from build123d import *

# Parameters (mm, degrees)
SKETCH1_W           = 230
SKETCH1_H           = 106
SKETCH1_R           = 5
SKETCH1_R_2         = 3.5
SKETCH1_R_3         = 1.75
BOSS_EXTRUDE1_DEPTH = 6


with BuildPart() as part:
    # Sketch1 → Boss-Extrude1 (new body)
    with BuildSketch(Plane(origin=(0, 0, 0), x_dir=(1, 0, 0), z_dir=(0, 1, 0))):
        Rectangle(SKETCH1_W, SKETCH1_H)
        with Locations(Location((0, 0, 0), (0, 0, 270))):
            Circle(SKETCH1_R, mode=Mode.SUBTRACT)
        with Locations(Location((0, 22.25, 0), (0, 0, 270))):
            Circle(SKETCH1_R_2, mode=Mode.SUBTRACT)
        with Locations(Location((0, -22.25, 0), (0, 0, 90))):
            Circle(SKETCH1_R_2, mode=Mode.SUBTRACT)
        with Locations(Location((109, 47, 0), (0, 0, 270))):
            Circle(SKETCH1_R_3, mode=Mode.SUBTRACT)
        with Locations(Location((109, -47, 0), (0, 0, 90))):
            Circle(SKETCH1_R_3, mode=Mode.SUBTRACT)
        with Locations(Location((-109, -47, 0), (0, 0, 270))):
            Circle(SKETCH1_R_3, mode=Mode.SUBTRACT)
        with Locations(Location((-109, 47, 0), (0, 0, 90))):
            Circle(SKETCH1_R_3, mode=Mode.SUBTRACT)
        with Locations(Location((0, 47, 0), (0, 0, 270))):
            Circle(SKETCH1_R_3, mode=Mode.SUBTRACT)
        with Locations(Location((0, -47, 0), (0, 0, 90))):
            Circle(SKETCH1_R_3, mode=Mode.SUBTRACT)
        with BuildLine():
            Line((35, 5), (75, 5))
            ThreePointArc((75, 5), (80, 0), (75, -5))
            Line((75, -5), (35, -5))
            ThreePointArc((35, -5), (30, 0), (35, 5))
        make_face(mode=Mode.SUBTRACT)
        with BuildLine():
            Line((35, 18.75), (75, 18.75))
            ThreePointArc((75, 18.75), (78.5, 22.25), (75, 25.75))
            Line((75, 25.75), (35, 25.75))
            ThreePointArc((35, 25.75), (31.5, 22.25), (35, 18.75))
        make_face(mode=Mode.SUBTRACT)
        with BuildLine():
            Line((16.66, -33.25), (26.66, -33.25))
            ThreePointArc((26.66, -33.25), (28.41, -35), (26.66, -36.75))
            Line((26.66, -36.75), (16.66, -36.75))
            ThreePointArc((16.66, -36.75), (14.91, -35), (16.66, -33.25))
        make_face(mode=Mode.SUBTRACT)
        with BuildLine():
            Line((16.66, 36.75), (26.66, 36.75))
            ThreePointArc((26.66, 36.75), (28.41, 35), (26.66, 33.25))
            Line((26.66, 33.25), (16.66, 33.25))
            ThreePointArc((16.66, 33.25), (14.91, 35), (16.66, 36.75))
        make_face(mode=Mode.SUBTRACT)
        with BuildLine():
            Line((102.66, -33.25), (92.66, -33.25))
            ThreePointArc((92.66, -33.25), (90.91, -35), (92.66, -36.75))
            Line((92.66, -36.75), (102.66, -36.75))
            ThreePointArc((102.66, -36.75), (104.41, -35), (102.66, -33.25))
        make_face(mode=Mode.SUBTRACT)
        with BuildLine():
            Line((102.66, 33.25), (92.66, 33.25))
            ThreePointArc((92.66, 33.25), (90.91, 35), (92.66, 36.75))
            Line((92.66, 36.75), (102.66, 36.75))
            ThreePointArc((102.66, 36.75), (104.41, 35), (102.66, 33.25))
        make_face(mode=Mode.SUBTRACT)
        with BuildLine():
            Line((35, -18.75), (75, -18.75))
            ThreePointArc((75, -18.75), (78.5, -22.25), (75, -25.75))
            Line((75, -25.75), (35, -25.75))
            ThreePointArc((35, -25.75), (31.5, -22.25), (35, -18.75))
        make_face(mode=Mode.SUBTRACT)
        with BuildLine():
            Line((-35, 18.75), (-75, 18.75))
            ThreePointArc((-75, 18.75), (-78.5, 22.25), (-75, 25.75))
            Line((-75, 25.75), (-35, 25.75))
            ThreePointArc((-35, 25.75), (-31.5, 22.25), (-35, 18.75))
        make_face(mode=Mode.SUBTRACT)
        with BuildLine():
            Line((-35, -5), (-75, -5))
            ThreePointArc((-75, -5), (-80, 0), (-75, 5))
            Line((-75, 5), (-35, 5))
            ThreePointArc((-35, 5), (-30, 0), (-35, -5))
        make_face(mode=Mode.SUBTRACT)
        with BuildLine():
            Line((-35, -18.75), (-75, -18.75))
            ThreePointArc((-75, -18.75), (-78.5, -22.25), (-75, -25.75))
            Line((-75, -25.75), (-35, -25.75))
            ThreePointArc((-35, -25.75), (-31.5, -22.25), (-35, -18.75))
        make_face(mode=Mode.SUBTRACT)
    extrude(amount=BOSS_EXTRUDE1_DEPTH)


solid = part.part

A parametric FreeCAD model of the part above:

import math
import FreeCAD as App
import Part
import Sketcher


def add_polygon(sketch, points):
    """Adds a closed chain of lines whose ends are joined by coincident constraints."""
    first, n = sketch.GeometryCount, len(points)
    for a, b in zip(points, points[1:] + points[:1]):
        sketch.addGeometry(Part.LineSegment(App.Vector(*a, 0), App.Vector(*b, 0)), False)
    for i in range(n):
        sketch.addConstraint(Sketcher.Constraint("Coincident", first + i, 2, first + (i + 1) % n, 1))

doc = App.newDocument("Part")
body = doc.addObject("PartDesign::Body", "Body")

# Sketch on XZ plane
sketch1 = doc.addObject("Sketcher::SketchObject", "Sketch")
body.addObject(sketch1)
sketch1.AttachmentSupport = (doc.XZ_Plane, [""])
sketch1.MapMode = "FlatFace"
add_polygon(sketch1, [(-115, -53), (-115, 53), (115, 53), (115, -53)])  # lines 0-3
sketch1.addGeometry(Part.Circle(App.Vector(-109, 47, 0), App.Vector(0, 0, 1), 1.75), False)  # 4
sketch1.addGeometry(Part.Circle(App.Vector(0, 47, 0), App.Vector(0, 0, 1), 1.75), False)  # 5
sketch1.addGeometry(Part.LineSegment(App.Vector(-75, 18.75, 0), App.Vector(-35, 18.75, 0)), False)  # 6
sketch1.addGeometry(Part.ArcOfCircle(Part.Circle(App.Vector(-35, 22.25, 0), App.Vector(0, 0, 1), 3.5), math.radians(-90), math.radians(90)), False)  # 7
sketch1.addGeometry(Part.LineSegment(App.Vector(-35, 25.75, 0), App.Vector(-75, 25.75, 0)), False)  # 8
sketch1.addGeometry(Part.ArcOfCircle(Part.Circle(App.Vector(-75, 22.25, 0), App.Vector(0, 0, 1), 3.5), math.radians(90), math.radians(270)), False)  # 9
sketch1.addGeometry(Part.Circle(App.Vector(0, 22.25, 0), App.Vector(0, 0, 1), 3.5), False)  # 10
sketch1.addGeometry(Part.ArcOfCircle(Part.Circle(App.Vector(16.66, 35, 0), App.Vector(0, 0, 1), 1.75), math.radians(90), math.radians(270)), False)  # 11
sketch1.addGeometry(Part.LineSegment(App.Vector(16.66, 33.25, 0), App.Vector(26.66, 33.25, 0)), False)  # 12
sketch1.addGeometry(Part.ArcOfCircle(Part.Circle(App.Vector(26.66, 35, 0), App.Vector(0, 0, 1), 1.75), math.radians(-90), math.radians(90)), False)  # 13
sketch1.addGeometry(Part.LineSegment(App.Vector(26.66, 36.75, 0), App.Vector(16.66, 36.75, 0)), False)  # 14
sketch1.addGeometry(Part.Circle(App.Vector(109, 47, 0), App.Vector(0, 0, 1), 1.75), False)  # 15
sketch1.addGeometry(Part.LineSegment(App.Vector(92.66, 33.25, 0), App.Vector(102.66, 33.25, 0)), False)  # 16
sketch1.addGeometry(Part.ArcOfCircle(Part.Circle(App.Vector(102.66, 35, 0), App.Vector(0, 0, 1), 1.75), math.radians(-90), math.radians(90)), False)  # 17
sketch1.addGeometry(Part.LineSegment(App.Vector(102.66, 36.75, 0), App.Vector(92.66, 36.75, 0)), False)  # 18
sketch1.addGeometry(Part.ArcOfCircle(Part.Circle(App.Vector(92.66, 35, 0), App.Vector(0, 0, 1), 1.75), math.radians(90), math.radians(270)), False)  # 19
sketch1.addGeometry(Part.ArcOfCircle(Part.Circle(App.Vector(35, 22.25, 0), App.Vector(0, 0, 1), 3.5), math.radians(90), math.radians(270)), False)  # 20
sketch1.addGeometry(Part.LineSegment(App.Vector(35, 18.75, 0), App.Vector(75, 18.75, 0)), False)  # 21
sketch1.addGeometry(Part.ArcOfCircle(Part.Circle(App.Vector(75, 22.25, 0), App.Vector(0, 0, 1), 3.5), math.radians(-90), math.radians(90)), False)  # 22
sketch1.addGeometry(Part.LineSegment(App.Vector(75, 25.75, 0), App.Vector(35, 25.75, 0)), False)  # 23
sketch1.addGeometry(Part.ArcOfCircle(Part.Circle(App.Vector(-35, 0, 0), App.Vector(0, 0, 1), 5), math.radians(-90), math.radians(90)), False)  # 24
sketch1.addGeometry(Part.LineSegment(App.Vector(-35, 5, 0), App.Vector(-75, 5, 0)), False)  # 25
sketch1.addGeometry(Part.ArcOfCircle(Part.Circle(App.Vector(-75, 0, 0), App.Vector(0, 0, 1), 5), math.radians(90), math.radians(270)), False)  # 26
sketch1.addGeometry(Part.LineSegment(App.Vector(-75, -5, 0), App.Vector(-35, -5, 0)), False)  # 27
sketch1.addGeometry(Part.Circle(App.Vector(0, 0, 0), App.Vector(0, 0, 1), 5), False)  # 28
sketch1.addGeometry(Part.ArcOfCircle(Part.Circle(App.Vector(-35, -22.25, 0), App.Vector(0, 0, 1), 3.5), math.radians(-90), math.radians(90)), False)  # 29
sketch1.addGeometry(Part.LineSegment(App.Vector(-35, -18.75, 0), App.Vector(-75, -18.75, 0)), False)  # 30
sketch1.addGeometry(Part.ArcOfCircle(Part.Circle(App.Vector(-75, -22.25, 0), App.Vector(0, 0, 1), 3.5), math.radians(90), math.radians(270)), False)  # 31
sketch1.addGeometry(Part.LineSegment(App.Vector(-75, -25.75, 0), App.Vector(-35, -25.75, 0)), False)  # 32
sketch1.addGeometry(Part.Circle(App.Vector(0, -22.25, 0), App.Vector(0, 0, 1), 3.5), False)  # 33
sketch1.addGeometry(Part.Circle(App.Vector(-109, -47, 0), App.Vector(0, 0, 1), 1.75), False)  # 34
sketch1.addGeometry(Part.Circle(App.Vector(0, -47, 0), App.Vector(0, 0, 1), 1.75), False)  # 35
sketch1.addGeometry(Part.ArcOfCircle(Part.Circle(App.Vector(35, 0, 0), App.Vector(0, 0, 1), 5), math.radians(90), math.radians(270)), False)  # 36
sketch1.addGeometry(Part.LineSegment(App.Vector(35, -5, 0), App.Vector(75, -5, 0)), False)  # 37
sketch1.addGeometry(Part.ArcOfCircle(Part.Circle(App.Vector(75, 0, 0), App.Vector(0, 0, 1), 5), math.radians(-90), math.radians(90)), False)  # 38
sketch1.addGeometry(Part.LineSegment(App.Vector(75, 5, 0), App.Vector(35, 5, 0)), False)  # 39
sketch1.addGeometry(Part.LineSegment(App.Vector(75, -18.75, 0), App.Vector(35, -18.75, 0)), False)  # 40
sketch1.addGeometry(Part.ArcOfCircle(Part.Circle(App.Vector(35, -22.25, 0), App.Vector(0, 0, 1), 3.5), math.radians(90), math.radians(270)), False)  # 41
sketch1.addGeometry(Part.LineSegment(App.Vector(35, -25.75, 0), App.Vector(75, -25.75, 0)), False)  # 42
sketch1.addGeometry(Part.ArcOfCircle(Part.Circle(App.Vector(75, -22.25, 0), App.Vector(0, 0, 1), 3.5), math.radians(-90), math.radians(90)), False)  # 43
sketch1.addGeometry(Part.ArcOfCircle(Part.Circle(App.Vector(16.66, -35, 0), App.Vector(0, 0, 1), 1.75), math.radians(90), math.radians(270)), False)  # 44
sketch1.addGeometry(Part.LineSegment(App.Vector(16.66, -36.75, 0), App.Vector(26.66, -36.75, 0)), False)  # 45
sketch1.addGeometry(Part.ArcOfCircle(Part.Circle(App.Vector(26.66, -35, 0), App.Vector(0, 0, 1), 1.75), math.radians(-90), math.radians(90)), False)  # 46
sketch1.addGeometry(Part.LineSegment(App.Vector(26.66, -33.25, 0), App.Vector(16.66, -33.25, 0)), False)  # 47
sketch1.addGeometry(Part.ArcOfCircle(Part.Circle(App.Vector(102.66, -35, 0), App.Vector(0, 0, 1), 1.75), math.radians(-90), math.radians(90)), False)  # 48
sketch1.addGeometry(Part.LineSegment(App.Vector(102.66, -33.25, 0), App.Vector(92.66, -33.25, 0)), False)  # 49
sketch1.addGeometry(Part.ArcOfCircle(Part.Circle(App.Vector(92.66, -35, 0), App.Vector(0, 0, 1), 1.75), math.radians(90), math.radians(270)), False)  # 50
sketch1.addGeometry(Part.LineSegment(App.Vector(92.66, -36.75, 0), App.Vector(102.66, -36.75, 0)), False)  # 51
sketch1.addGeometry(Part.Circle(App.Vector(109, -47, 0), App.Vector(0, 0, 1), 1.75), False)  # 52
sketch1.addConstraint([
    Sketcher.Constraint("Tangent", 6, 2, 7, 1),
    Sketcher.Constraint("Tangent", 7, 2, 8, 1),
    Sketcher.Constraint("Tangent", 8, 2, 9, 1),
    Sketcher.Constraint("Tangent", 9, 2, 6, 1),
    Sketcher.Constraint("Tangent", 11, 2, 12, 1),
    Sketcher.Constraint("Tangent", 12, 2, 13, 1),
    Sketcher.Constraint("Tangent", 13, 2, 14, 1),
    Sketcher.Constraint("Tangent", 14, 2, 11, 1),
    Sketcher.Constraint("Tangent", 16, 2, 17, 1),
    Sketcher.Constraint("Tangent", 17, 2, 18, 1),
    Sketcher.Constraint("Tangent", 18, 2, 19, 1),
    Sketcher.Constraint("Tangent", 19, 2, 16, 1),
    Sketcher.Constraint("Tangent", 20, 2, 21, 1),
    Sketcher.Constraint("Tangent", 21, 2, 22, 1),
    Sketcher.Constraint("Tangent", 22, 2, 23, 1),
    Sketcher.Constraint("Tangent", 23, 2, 20, 1),
    Sketcher.Constraint("Tangent", 24, 2, 25, 1),
    Sketcher.Constraint("Tangent", 25, 2, 26, 1),
    Sketcher.Constraint("Tangent", 26, 2, 27, 1),
    Sketcher.Constraint("Tangent", 27, 2, 24, 1),
    Sketcher.Constraint("Tangent", 29, 2, 30, 1),
    Sketcher.Constraint("Tangent", 30, 2, 31, 1),
    Sketcher.Constraint("Tangent", 31, 2, 32, 1),
    Sketcher.Constraint("Tangent", 32, 2, 29, 1),
    Sketcher.Constraint("Tangent", 36, 2, 37, 1),
    Sketcher.Constraint("Tangent", 37, 2, 38, 1),
    Sketcher.Constraint("Tangent", 38, 2, 39, 1),
    Sketcher.Constraint("Tangent", 39, 2, 36, 1),
    Sketcher.Constraint("Tangent", 40, 2, 41, 1),
    Sketcher.Constraint("Tangent", 41, 2, 42, 1),
    Sketcher.Constraint("Tangent", 42, 2, 43, 1),
    Sketcher.Constraint("Tangent", 43, 2, 40, 1),
    Sketcher.Constraint("Tangent", 44, 2, 45, 1),
    Sketcher.Constraint("Tangent", 45, 2, 46, 1),
    Sketcher.Constraint("Tangent", 46, 2, 47, 1),
    Sketcher.Constraint("Tangent", 47, 2, 44, 1),
    Sketcher.Constraint("Tangent", 48, 2, 49, 1),
    Sketcher.Constraint("Tangent", 49, 2, 50, 1),
    Sketcher.Constraint("Tangent", 50, 2, 51, 1),
    Sketcher.Constraint("Tangent", 51, 2, 48, 1),
    Sketcher.Constraint("Vertical", 0),
    Sketcher.Constraint("Horizontal", 1),
    Sketcher.Constraint("Vertical", 2),
    Sketcher.Constraint("Horizontal", 3),
    Sketcher.Constraint("Horizontal", 6),
    Sketcher.Constraint("Horizontal", 8),
    Sketcher.Constraint("Horizontal", 12),
    Sketcher.Constraint("Horizontal", 14),
    Sketcher.Constraint("Horizontal", 16),
    Sketcher.Constraint("Horizontal", 18),
    Sketcher.Constraint("Horizontal", 21),
    Sketcher.Constraint("Horizontal", 23),
    Sketcher.Constraint("Horizontal", 25),
    Sketcher.Constraint("Horizontal", 27),
    Sketcher.Constraint("Horizontal", 30),
    Sketcher.Constraint("Horizontal", 32),
    Sketcher.Constraint("Horizontal", 37),
    Sketcher.Constraint("Horizontal", 39),
    Sketcher.Constraint("Horizontal", 40),
    Sketcher.Constraint("Horizontal", 42),
    Sketcher.Constraint("Horizontal", 45),
    Sketcher.Constraint("Horizontal", 47),
    Sketcher.Constraint("Horizontal", 49),
    Sketcher.Constraint("Horizontal", 51),
    Sketcher.Constraint("Coincident", 28, 3, -1, 1),
    Sketcher.Constraint("Equal", 4, 5),
    Sketcher.Constraint("Equal", 9, 10),
    Sketcher.Constraint("Equal", 5, 11),
    Sketcher.Constraint("Equal", 13, 15),
    Sketcher.Constraint("Equal", 15, 17),
    Sketcher.Constraint("Equal", 10, 20),
    Sketcher.Constraint("Equal", 26, 28),
    Sketcher.Constraint("Equal", 22, 29),
    Sketcher.Constraint("Equal", 31, 33),
    Sketcher.Constraint("Equal", 19, 34),
    Sketcher.Constraint("Equal", 34, 35),
    Sketcher.Constraint("Equal", 28, 36),
    Sketcher.Constraint("Equal", 33, 41),
    Sketcher.Constraint("Equal", 35, 44),
    Sketcher.Constraint("Equal", 46, 48),
    Sketcher.Constraint("Equal", 50, 52),
    Sketcher.Constraint("Symmetric", 20, 3, 29, 3, -1, 1),
    Sketcher.Constraint("Symmetric", 10, 3, 33, 3, -1, 1),
    Sketcher.Constraint("Symmetric", 15, 3, 34, 3, -1, 1),
    Sketcher.Constraint("Symmetric", 5, 3, 35, 3, -1, 1),
    Sketcher.Constraint("Symmetric", 24, 3, 36, 3, -1, 1),
    Sketcher.Constraint("Symmetric", 7, 3, 41, 3, -1, 1),
    Sketcher.Constraint("Symmetric", 4, 3, 52, 3, -1, 1),
    Sketcher.Constraint("Symmetric", 0, 2, 2, 2, -1, 1),
    Sketcher.Constraint("Symmetric", 4, 3, 15, 3, -2),
    Sketcher.Constraint("Symmetric", 7, 3, 20, 3, -2),
    Sketcher.Constraint("Symmetric", 26, 3, 38, 3, -2),
    Sketcher.Constraint("Symmetric", 11, 3, 44, 3, -1),
    Sketcher.Constraint("Symmetric", 17, 3, 48, 3, -1),
    Sketcher.Constraint("PointOnObject", 5, 3, -2),
    Sketcher.Constraint("PointOnObject", 10, 3, -2),
    Sketcher.Constraint("Horizontal", 4, 3, 5, 3),
    Sketcher.Constraint("Horizontal", 9, 3, 10, 3),
    Sketcher.Constraint("Horizontal", 13, 3, 17, 3),
    Sketcher.Constraint("Vertical", 7, 3, 24, 3),
    Sketcher.Constraint("Vertical", 9, 3, 26, 3),
    Sketcher.Constraint("Vertical", 26, 3, 31, 3),
    Sketcher.Constraint("Vertical", 22, 3, 38, 3),
    Sketcher.Constraint("Vertical", 38, 3, 43, 3),
    Sketcher.Constraint("Vertical", 13, 3, 46, 3),
    Sketcher.Constraint("Vertical", 19, 3, 50, 3),
    Sketcher.Constraint("Equal", 14, 16),
    Sketcher.Constraint("Diameter", 10, 7.0),
    Sketcher.Constraint("Diameter", 28, 10.0),
    Sketcher.Constraint("Diameter", 4, 3.5),
    Sketcher.Constraint("DistanceX", 1, 1, 1, 2, 230.0),
    Sketcher.Constraint("DistanceX", 6, 1, 6, 2, 40.0),
    Sketcher.Constraint("DistanceX", 12, 1, 12, 2, 10.0),
    Sketcher.Constraint("DistanceY", 0, 1, 0, 2, 106.0),
    Sketcher.Constraint("DistanceX", 4, 3, -1, 1, 109.0),
    Sketcher.Constraint("DistanceY", -1, 1, 4, 3, 47.0),
    Sketcher.Constraint("DistanceX", 7, 3, -1, 1, 35.0),
    Sketcher.Constraint("DistanceY", -1, 1, 11, 3, 35.0),
    Sketcher.Constraint("DistanceY", -1, 1, 7, 3, 22.25),
    Sketcher.Constraint("DistanceX", -1, 1, 11, 3, 16.66),
    Sketcher.Constraint("DistanceX", -1, 1, 17, 3, 102.66),
])
pad1 = doc.addObject("PartDesign::Pad", "Pad")
body.addObject(pad1)
pad1.Profile = sketch1
pad1.Length = 6
pad1.Reversed = True

doc.recompute()
